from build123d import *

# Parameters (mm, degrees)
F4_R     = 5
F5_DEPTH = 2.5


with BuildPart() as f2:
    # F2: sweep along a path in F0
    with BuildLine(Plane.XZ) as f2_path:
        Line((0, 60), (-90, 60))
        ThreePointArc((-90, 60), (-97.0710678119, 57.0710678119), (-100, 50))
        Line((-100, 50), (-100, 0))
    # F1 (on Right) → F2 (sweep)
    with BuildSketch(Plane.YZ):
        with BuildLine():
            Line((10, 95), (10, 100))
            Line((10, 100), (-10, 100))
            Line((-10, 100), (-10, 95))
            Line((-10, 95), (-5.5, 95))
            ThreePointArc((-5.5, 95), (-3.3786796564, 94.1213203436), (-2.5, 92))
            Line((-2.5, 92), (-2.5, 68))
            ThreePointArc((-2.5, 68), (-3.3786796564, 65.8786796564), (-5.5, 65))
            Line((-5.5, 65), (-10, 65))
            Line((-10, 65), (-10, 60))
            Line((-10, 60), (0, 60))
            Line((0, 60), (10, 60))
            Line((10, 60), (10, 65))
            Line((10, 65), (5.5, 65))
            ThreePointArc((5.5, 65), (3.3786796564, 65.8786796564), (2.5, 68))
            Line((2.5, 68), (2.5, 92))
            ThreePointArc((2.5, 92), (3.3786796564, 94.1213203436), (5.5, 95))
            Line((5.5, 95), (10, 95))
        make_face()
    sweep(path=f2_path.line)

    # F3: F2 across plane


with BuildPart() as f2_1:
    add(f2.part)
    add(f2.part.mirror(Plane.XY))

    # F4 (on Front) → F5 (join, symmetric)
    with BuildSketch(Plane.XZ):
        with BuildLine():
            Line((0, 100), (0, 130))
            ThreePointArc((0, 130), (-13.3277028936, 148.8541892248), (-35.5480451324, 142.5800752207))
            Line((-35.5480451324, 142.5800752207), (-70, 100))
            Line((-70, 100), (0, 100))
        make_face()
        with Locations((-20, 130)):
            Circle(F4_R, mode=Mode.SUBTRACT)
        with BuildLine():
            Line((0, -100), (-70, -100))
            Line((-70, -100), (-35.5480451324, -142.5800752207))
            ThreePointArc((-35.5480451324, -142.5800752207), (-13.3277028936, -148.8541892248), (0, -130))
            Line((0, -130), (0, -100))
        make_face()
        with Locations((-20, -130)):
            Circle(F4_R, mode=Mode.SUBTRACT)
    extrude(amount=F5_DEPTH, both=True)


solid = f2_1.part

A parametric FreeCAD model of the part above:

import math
import FreeCAD as App
import Part
import Sketcher

V = App.Vector

doc = App.newDocument("Part")
body = doc.addObject("PartDesign::Body", "Body")

# Sketch on YZ plane
sketch1 = body.newObject("Sketcher::SketchObject", "Sketch")
sketch1.AttachmentSupport = (doc.getObject("YZ_Plane"), [""])
sketch1.MapMode = "FlatFace"
sketch1.addGeometry([
    Part.LineSegment(V(10, 95, 0), V(10, 100, 0)),  # 0
    Part.LineSegment(V(10, 100, 0), V(-10, 100, 0)),  # 1
    Part.LineSegment(V(-10, 100, 0), V(-10, 95, 0)),  # 2
    Part.LineSegment(V(-10, 95, 0), V(-5.5, 95, 0)),  # 3
    Part.ArcOfCircle(Part.Circle(V(-5.5, 92, 0), V(0, 0, 1), 3), math.radians(0), math.radians(90)),  # 4
    Part.LineSegment(V(-2.5, 92, 0), V(-2.5, 68, 0)),  # 5
    Part.ArcOfCircle(Part.Circle(V(-5.5, 68, 0), V(0, 0, 1), 3), math.radians(-90), math.radians(0)),  # 6
    Part.LineSegment(V(-5.5, 65, 0), V(-10, 65, 0)),  # 7
    Part.LineSegment(V(-10, 65, 0), V(-10, 60, 0)),  # 8
    Part.LineSegment(V(-10, 60, 0), V(10, 60, 0)),  # 9
    Part.LineSegment(V(10, 60, 0), V(10, 65, 0)),  # 10
    Part.LineSegment(V(10, 65, 0), V(5.5, 65, 0)),  # 11
    Part.ArcOfCircle(Part.Circle(V(5.5, 68, 0), V(0, 0, 1), 3), math.radians(180), math.radians(270)),  # 12
    Part.LineSegment(V(2.5, 68, 0), V(2.5, 92, 0)),  # 13
    Part.ArcOfCircle(Part.Circle(V(5.5, 92, 0), V(0, 0, 1), 3), math.radians(90), math.radians(180)),  # 14
    Part.LineSegment(V(5.5, 95, 0), V(10, 95, 0)),  # 15
], False)
sketch1.addConstraint([
    Sketcher.Constraint("Coincident", 0, 2, 1, 1),
    Sketcher.Constraint("Coincident", 1, 2, 2, 1),
    Sketcher.Constraint("Coincident", 2, 2, 3, 1),
    Sketcher.Constraint("Tangent", 3, 2, 4, 2),
    Sketcher.Constraint("Tangent", 4, 1, 5, 1),
    Sketcher.Constraint("Tangent", 5, 2, 6, 2),
    Sketcher.Constraint("Tangent", 6, 1, 7, 1),
    Sketcher.Constraint("Coincident", 7, 2, 8, 1),
    Sketcher.Constraint("Coincident", 8, 2, 9, 1),
    Sketcher.Constraint("Coincident", 9, 2, 10, 1),
    Sketcher.Constraint("Coincident", 10, 2, 11, 1),
    Sketcher.Constraint("Tangent", 11, 2, 12, 2),
    Sketcher.Constraint("Tangent", 12, 1, 13, 1),
    Sketcher.Constraint("Tangent", 13, 2, 14, 2),
    Sketcher.Constraint("Tangent", 14, 1, 15, 1),
    Sketcher.Constraint("Coincident", 15, 2, 0, 1),
    Sketcher.Constraint("Vertical", 0),
    Sketcher.Constraint("Horizontal", 1),
    Sketcher.Constraint("Vertical", 2),
    Sketcher.Constraint("Horizontal", 3),
    Sketcher.Constraint("Vertical", 5),
    Sketcher.Constraint("Horizontal", 7),
    Sketcher.Constraint("Vertical", 8),
    Sketcher.Constraint("Horizontal", 9),
    Sketcher.Constraint("Vertical", 10),
    Sketcher.Constraint("Horizontal", 11),
    Sketcher.Constraint("Vertical", 13),
    Sketcher.Constraint("Horizontal", 15),
    Sketcher.Constraint("Equal", 4, 6),
    Sketcher.Constraint("Equal", 6, 12),
    Sketcher.Constraint("Equal", 12, 14),
    Sketcher.Constraint("Symmetric", 6, 3, 12, 3, -2),
    Sketcher.Constraint("Symmetric", 2, 2, 15, 2, -2),
    Sketcher.Constraint("Vertical", 2, 2, 7, 2),
    Sketcher.Constraint("Vertical", 0, 2, 9, 2),
    Sketcher.Constraint("Equal", 2, 8),
    Sketcher.Constraint("Radius", 4, 3.0),
    Sketcher.Constraint("DistanceX", 1, 2, 1, 1, 20.0),
    Sketcher.Constraint("DistanceY", 0, 1, 0, 2, 5.0),
    Sketcher.Constraint("DistanceY", 5, 2, 5, 1, 24.0),
    Sketcher.Constraint("DistanceX", 3, 1, 3, 2, 4.5),
    Sketcher.Constraint("DistanceY", -1, 1, 4, 3, 92.0),
])

# Sketch on XZ plane
sketch2 = body.newObject("Sketcher::SketchObject", "Sketch001")
sketch2.AttachmentSupport = (doc.getObject("XZ_Plane"), [""])
sketch2.MapMode = "FlatFace"
sketch2.addGeometry([
    Part.LineSegment(V(0, 60, 0), V(-90, 60, 0)),
    Part.ArcOfCircle(Part.Circle(V(-90, 50, 0), V(0, 0, 1), 10), math.radians(90), math.radians(180)),
    Part.LineSegment(V(-100, 50, 0), V(-100, 0, 0)),
], False)
sketch2.addConstraint([
    Sketcher.Constraint("Tangent", 0, 2, 1, 1),
    Sketcher.Constraint("Tangent", 1, 2, 2, 1),
    Sketcher.Constraint("Horizontal", 0),
    Sketcher.Constraint("Vertical", 2),
    Sketcher.Constraint("PointOnObject", 0, 1, -2),
    Sketcher.Constraint("PointOnObject", 2, 2, -1),
    Sketcher.Constraint("Radius", 1, 10.0),
    Sketcher.Constraint("DistanceX", 0, 2, 0, 1, 90.0),
    Sketcher.Constraint("DistanceY", 2, 2, 2, 1, 50.0),
])
doc.recompute()

additivepipe = body.newObject("PartDesign::AdditivePipe", "AdditivePipe")
additivepipe.Profile = sketch1
additivepipe.Spine = (sketch2, ["Edge1", "Edge2", "Edge3"])
body2 = doc.addObject("PartDesign::Body", "Body001")
doc.recompute()

body2.BaseFeature = body
doc.recompute()

mirroring = doc.addObject("Part::Mirroring", "Mirroring")
mirroring.Source = body
mirroring.Base = V(0, 0, 0)
mirroring.Normal = V(0, 0, 1)
body3 = doc.addObject("PartDesign::Body", "Body002")
body3.BaseFeature = mirroring
boolean = body2.newObject("PartDesign::Boolean", "Boolean")
boolean.Type = "Fuse"
boolean.addObjects([body3])
doc.recompute()

# Sketch on XZ plane
sketch3 = body2.newObject("Sketcher::SketchObject", "Sketch002")
sketch3.AttachmentSupport = (doc.getObject("XZ_Plane001"), [""])
sketch3.MapMode = "FlatFace"
sketch3.addGeometry([
    Part.LineSegment(V(0, 100, 0), V(0, 130, 0)),  # 0
    Part.ArcOfCircle(Part.Circle(V(-20, 130, 0), V(0, 0, 1), 20), math.radians(0), math.radians(141)),  # 1
    Part.LineSegment(V(-36, 143, 0), V(-70, 100, 0)),  # 2
    Part.LineSegment(V(-70, 100, 0), V(0, 100, 0)),  # 3
    Part.Circle(V(-20, 130, 0), V(0, 0, 1), 5),  # 4
    Part.LineSegment(V(0, -100, 0), V(-70, -100, 0)),  # 5
    Part.LineSegment(V(-70, -100, 0), V(-36, -143, 0)),  # 6
    Part.ArcOfCircle(Part.Circle(V(-20, -130, 0), V(0, 0, 1), 20), math.radians(-141), math.radians(0)),  # 7
    Part.LineSegment(V(0, -130, 0), V(0, -100, 0)),  # 8
    Part.Circle(V(-20, -130, 0), V(0, 0, 1), 5),  # 9
], False)
sketch3.addConstraint([
    Sketcher.Constraint("Tangent", 0, 2, 1, 1),
    Sketcher.Constraint("Tangent", 1, 2, 2, 1),
    Sketcher.Constraint("Coincident", 2, 2, 3, 1),
    Sketcher.Constraint("Coincident", 3, 2, 0, 1),
    Sketcher.Constraint("Coincident", 5, 2, 6, 1),
    Sketcher.Constraint("Tangent", 6, 2, 7, 1),
    Sketcher.Constraint("Tangent", 7, 2, 8, 1),
    Sketcher.Constraint("Coincident", 8, 2, 5, 1),
    Sketcher.Constraint("Vertical", 0),
    Sketcher.Constraint("Horizontal", 3),
    Sketcher.Constraint("Horizontal", 5),
    Sketcher.Constraint("Vertical", 8),
    Sketcher.Constraint("Coincident", 4, 3, 1, 3),
    Sketcher.Constraint("Coincident", 9, 3, 7, 3),
    Sketcher.Constraint("Equal", 1, 7),
    Sketcher.Constraint("Equal", 4, 9),
    Sketcher.Constraint("Symmetric", 0, 2, 7, 2, -1, 1),
    Sketcher.Constraint("Symmetric", 2, 2, 5, 2, -1),
    Sketcher.Constraint("PointOnObject", 0, 2, -2),
    Sketcher.Constraint("Diameter", 4, 10.0),
    Sketcher.Constraint("Radius", 1, 20.0),
    Sketcher.Constraint("DistanceX", 3, 1, 3, 2, 70.0),
    Sketcher.Constraint("DistanceY", 0, 1, 0, 2, 30.0),
    Sketcher.Constraint("DistanceY", -1, 1, 1, 3, 130.0),
])
pad1 = body2.newObject("PartDesign::Pad", "Pad")
pad1.Profile = sketch3
pad1.Length = 5
pad1.Midplane = True
mirroring.Visibility = False

doc.recompute()
